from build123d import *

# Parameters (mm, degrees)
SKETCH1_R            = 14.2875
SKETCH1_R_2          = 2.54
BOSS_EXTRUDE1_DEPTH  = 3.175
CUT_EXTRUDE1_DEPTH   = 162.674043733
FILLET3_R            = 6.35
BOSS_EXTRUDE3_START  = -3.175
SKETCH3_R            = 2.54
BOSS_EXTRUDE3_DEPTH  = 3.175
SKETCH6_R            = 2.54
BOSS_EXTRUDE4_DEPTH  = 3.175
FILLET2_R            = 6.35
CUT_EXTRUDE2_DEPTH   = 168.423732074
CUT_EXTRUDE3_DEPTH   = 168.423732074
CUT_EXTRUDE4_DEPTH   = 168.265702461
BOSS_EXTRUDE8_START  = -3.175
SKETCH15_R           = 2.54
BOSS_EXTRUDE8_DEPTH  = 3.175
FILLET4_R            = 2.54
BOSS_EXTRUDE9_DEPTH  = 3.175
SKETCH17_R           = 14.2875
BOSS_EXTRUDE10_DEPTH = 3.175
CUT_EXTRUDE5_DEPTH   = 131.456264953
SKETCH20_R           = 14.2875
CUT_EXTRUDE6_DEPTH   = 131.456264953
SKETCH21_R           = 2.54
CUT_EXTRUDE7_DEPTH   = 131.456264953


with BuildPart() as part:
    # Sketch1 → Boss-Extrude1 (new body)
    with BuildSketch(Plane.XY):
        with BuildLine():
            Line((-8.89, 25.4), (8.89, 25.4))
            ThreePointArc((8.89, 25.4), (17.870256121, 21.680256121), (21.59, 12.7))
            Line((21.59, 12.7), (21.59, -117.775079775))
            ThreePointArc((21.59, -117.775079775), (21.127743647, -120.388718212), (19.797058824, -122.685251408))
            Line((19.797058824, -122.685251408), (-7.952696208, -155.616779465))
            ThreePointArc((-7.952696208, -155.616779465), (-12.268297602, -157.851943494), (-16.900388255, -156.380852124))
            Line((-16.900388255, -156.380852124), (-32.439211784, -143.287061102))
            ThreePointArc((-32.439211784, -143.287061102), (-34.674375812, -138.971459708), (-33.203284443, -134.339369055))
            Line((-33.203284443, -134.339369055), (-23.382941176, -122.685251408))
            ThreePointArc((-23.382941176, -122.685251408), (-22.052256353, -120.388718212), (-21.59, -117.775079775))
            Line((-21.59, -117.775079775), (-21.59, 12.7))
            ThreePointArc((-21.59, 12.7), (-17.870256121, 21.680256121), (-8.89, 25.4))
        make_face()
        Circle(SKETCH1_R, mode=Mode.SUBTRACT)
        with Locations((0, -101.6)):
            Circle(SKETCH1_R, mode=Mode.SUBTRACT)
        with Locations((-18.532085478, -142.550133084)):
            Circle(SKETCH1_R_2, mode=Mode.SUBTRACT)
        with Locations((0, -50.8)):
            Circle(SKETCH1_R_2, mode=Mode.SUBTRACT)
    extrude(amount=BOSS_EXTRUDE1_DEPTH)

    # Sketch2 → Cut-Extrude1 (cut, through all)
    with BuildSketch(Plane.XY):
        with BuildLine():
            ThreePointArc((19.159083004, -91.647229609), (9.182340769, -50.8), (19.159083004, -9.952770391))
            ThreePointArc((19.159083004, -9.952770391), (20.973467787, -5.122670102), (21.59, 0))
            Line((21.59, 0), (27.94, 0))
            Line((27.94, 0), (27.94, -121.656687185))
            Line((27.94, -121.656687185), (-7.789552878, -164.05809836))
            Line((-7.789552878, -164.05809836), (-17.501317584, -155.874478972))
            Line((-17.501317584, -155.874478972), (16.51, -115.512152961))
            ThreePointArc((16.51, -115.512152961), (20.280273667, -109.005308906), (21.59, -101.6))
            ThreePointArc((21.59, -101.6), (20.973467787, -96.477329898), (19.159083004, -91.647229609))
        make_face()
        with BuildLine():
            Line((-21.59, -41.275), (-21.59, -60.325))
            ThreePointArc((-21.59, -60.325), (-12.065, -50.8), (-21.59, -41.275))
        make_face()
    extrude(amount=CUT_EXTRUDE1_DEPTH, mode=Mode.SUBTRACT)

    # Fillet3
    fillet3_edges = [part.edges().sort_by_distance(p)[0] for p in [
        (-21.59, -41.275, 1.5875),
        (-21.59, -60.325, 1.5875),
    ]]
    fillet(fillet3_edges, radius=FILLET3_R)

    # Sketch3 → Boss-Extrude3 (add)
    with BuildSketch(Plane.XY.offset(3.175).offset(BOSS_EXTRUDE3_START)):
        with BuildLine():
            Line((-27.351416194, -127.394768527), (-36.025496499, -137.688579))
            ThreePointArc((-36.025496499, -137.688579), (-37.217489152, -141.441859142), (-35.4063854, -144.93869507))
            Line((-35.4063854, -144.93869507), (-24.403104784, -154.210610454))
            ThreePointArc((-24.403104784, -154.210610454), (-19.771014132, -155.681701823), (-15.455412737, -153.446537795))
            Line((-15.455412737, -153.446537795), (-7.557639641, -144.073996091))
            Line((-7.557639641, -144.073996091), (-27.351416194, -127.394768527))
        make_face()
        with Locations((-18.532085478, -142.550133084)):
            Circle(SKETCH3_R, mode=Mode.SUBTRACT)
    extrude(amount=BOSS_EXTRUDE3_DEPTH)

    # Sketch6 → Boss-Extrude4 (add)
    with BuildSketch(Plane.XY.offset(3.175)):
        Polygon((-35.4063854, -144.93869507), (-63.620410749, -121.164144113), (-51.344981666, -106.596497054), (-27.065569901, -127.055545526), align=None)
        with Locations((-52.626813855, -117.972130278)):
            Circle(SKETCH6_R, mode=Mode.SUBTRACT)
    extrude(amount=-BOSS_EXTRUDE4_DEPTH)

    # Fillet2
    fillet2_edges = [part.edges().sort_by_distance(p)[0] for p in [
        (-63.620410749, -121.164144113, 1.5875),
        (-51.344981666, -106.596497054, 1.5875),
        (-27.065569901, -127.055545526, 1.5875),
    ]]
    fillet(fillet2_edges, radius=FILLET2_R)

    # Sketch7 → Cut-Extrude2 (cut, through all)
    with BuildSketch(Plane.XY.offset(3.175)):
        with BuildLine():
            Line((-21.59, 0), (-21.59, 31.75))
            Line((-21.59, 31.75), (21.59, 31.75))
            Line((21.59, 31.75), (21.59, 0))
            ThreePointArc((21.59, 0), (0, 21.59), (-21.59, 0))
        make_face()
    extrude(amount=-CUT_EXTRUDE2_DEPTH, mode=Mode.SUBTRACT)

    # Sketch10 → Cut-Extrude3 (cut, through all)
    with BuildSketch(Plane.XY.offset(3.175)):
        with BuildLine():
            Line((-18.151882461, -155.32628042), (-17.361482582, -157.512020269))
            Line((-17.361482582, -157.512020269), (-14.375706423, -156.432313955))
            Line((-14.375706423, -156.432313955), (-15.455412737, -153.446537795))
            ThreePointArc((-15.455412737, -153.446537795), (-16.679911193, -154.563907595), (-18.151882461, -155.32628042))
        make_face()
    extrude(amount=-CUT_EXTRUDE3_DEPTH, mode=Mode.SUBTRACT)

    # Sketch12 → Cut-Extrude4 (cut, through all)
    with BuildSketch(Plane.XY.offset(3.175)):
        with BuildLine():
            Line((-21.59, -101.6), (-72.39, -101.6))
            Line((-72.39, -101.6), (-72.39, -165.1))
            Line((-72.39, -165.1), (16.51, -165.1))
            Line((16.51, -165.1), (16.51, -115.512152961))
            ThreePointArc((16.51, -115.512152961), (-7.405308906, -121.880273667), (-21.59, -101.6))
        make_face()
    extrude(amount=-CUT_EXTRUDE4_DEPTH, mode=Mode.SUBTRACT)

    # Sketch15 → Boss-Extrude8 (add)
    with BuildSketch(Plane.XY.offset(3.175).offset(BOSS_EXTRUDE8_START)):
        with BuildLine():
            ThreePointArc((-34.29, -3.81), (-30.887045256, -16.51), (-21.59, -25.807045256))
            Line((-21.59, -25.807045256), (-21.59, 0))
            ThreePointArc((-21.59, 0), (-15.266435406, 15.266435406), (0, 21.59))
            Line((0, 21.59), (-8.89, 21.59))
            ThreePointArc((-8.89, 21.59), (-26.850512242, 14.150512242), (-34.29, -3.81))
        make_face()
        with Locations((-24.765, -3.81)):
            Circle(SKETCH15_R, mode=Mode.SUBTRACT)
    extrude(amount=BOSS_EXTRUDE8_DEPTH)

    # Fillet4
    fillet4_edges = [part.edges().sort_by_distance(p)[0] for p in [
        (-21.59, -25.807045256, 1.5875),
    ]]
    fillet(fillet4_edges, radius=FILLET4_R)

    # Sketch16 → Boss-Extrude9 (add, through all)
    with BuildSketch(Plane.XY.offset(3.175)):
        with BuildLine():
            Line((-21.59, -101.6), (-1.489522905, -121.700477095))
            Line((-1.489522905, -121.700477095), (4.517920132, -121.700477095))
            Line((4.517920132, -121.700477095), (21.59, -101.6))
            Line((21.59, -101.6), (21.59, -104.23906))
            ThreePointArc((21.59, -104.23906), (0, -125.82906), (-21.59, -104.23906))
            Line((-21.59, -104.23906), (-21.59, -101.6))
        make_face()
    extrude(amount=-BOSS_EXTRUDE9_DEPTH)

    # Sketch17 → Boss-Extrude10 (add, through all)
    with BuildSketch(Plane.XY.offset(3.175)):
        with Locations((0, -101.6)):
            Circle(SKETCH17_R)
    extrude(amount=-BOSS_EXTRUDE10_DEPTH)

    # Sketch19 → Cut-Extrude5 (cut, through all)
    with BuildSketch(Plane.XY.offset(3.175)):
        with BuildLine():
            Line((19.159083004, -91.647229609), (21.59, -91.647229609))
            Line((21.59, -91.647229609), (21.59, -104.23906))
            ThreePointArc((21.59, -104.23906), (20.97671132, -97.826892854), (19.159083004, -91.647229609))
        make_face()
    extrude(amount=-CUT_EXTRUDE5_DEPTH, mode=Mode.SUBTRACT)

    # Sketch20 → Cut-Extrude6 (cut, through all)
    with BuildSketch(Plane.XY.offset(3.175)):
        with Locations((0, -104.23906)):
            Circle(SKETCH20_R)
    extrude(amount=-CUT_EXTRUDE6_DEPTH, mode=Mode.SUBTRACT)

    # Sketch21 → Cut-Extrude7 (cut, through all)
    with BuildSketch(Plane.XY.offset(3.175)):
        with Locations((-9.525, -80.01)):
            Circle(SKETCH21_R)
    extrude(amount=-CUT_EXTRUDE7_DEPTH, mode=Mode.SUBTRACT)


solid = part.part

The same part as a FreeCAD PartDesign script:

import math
import FreeCAD as App
import Part
import Sketcher

V = App.Vector
Q = App.Units.Quantity


def edges_at(feature, points):
    """Names of the edges that pass closest to the given points."""
    edges = feature.Shape.Edges
    near = lambda p: min(range(len(edges)), key=lambda i: edges[i].distToShape(Part.Vertex(*p))[0])
    return sorted({f"Edge{near(p) + 1}" for p in points})

doc = App.newDocument("Part")
body = doc.addObject("PartDesign::Body", "Body")

sketch1 = body.newObject("Sketcher::SketchObject", "Sketch")
sketch1.AttachmentSupport = (doc.getObject("XY_Plane"), [""])
sketch1.MapMode = "FlatFace"
sketch1.addGeometry(Part.LineSegment(V(8.9, 25.4, 0), V(-8.9, 25.4, 0)), False)
sketch1.addGeometry(Part.ArcOfCircle(Part.Circle(V(-8.9, 12.7, 0), V(0, 0, 1), 12.7), math.radians(90), math.radians(180)), False)
sketch1.addGeometry(Part.LineSegment(V(-21.6, 12.7, 0), V(-21.6, -117.8, 0)), False)
sketch1.addGeometry(Part.ArcOfCircle(Part.Circle(V(-29.2, -117.8, 0), V(0, 0, 1), 7.6), math.radians(-40), math.radians(0)), False)
sketch1.addGeometry(Part.LineSegment(V(-23.4, -122.7, 0), V(-33.2, -134.3, 0)), False)
sketch1.addGeometry(Part.ArcOfCircle(Part.Circle(V(-28.3, -138.4, 0), V(0, 0, 1), 6.4), math.radians(140), math.radians(230)), False)
sketch1.addGeometry(Part.LineSegment(V(-32.4, -143.3, 0), V(-16.9, -156.4, 0)), False)
sketch1.addGeometry(Part.ArcOfCircle(Part.Circle(V(-12.8, -151.5, 0), V(0, 0, 1), 6.3), math.radians(-130), math.radians(-40)), False)
sketch1.addGeometry(Part.LineSegment(V(-8, -155.6, 0), V(19.8, -122.7, 0)), False)
sketch1.addGeometry(Part.ArcOfCircle(Part.Circle(V(14, -117.8, 0), V(0, 0, 1), 7.6), math.radians(-40), math.radians(0)), False)
sketch1.addGeometry(Part.LineSegment(V(21.6, -117.8, 0), V(21.6, 12.7, 0)), False)
sketch1.addGeometry(Part.ArcOfCircle(Part.Circle(V(8.9, 12.7, 0), V(0, 0, 1), 12.7), math.radians(0), math.radians(90)), False)
sketch1.addGeometry(Part.Circle(V(0, -101.6, 0), V(0, 0, 1), 14.3), False)
sketch1.addGeometry(Part.Circle(V(-18.5, -142.6, 0), V(0, 0, 1), 2.5), False)
sketch1.addGeometry(Part.Circle(V(0, -50.8, 0), V(0, 0, 1), 2.5), False)
sketch1.addGeometry(Part.Circle(V(0, 0, 0), V(0, 0, 1), 14.3), False)
sketch1.addConstraint(Sketcher.Constraint("Tangent", 0, 2, 1, 1))
sketch1.addConstraint(Sketcher.Constraint("Tangent", 1, 2, 2, 1))
sketch1.addConstraint(Sketcher.Constraint("Tangent", 2, 2, 3, 2))
sketch1.addConstraint(Sketcher.Constraint("Tangent", 3, 1, 4, 1))
sketch1.addConstraint(Sketcher.Constraint("Tangent", 4, 2, 5, 1))
sketch1.addConstraint(Sketcher.Constraint("Tangent", 5, 2, 6, 1))
sketch1.addConstraint(Sketcher.Constraint("Tangent", 6, 2, 7, 1))
sketch1.addConstraint(Sketcher.Constraint("Tangent", 7, 2, 8, 1))
sketch1.addConstraint(Sketcher.Constraint("Tangent", 8, 2, 9, 1))
sketch1.addConstraint(Sketcher.Constraint("Tangent", 9, 2, 10, 1))
sketch1.addConstraint(Sketcher.Constraint("Tangent", 10, 2, 11, 1))
sketch1.addConstraint(Sketcher.Constraint("Tangent", 11, 2, 0, 1))
sketch1.addConstraint(Sketcher.Constraint("Horizontal", 0))
sketch1.addConstraint(Sketcher.Constraint("Vertical", 2))
sketch1.addConstraint(Sketcher.Constraint("Vertical", 10))
sketch1.addConstraint(Sketcher.Constraint("Coincident", 15, 3, -1, 1))
sketch1.addConstraint(Sketcher.Constraint("Equal", 5, 7))
sketch1.addConstraint(Sketcher.Constraint("Equal", 3, 9))
sketch1.addConstraint(Sketcher.Constraint("Equal", 1, 11))
sketch1.addConstraint(Sketcher.Constraint("Equal", 13, 14))
sketch1.addConstraint(Sketcher.Constraint("Equal", 12, 15))
sketch1.addConstraint(Sketcher.Constraint("Symmetric", 2, 2, 9, 2, -2))
sketch1.addConstraint(Sketcher.Constraint("PointOnObject", 12, 3, -2))
sketch1.addConstraint(Sketcher.Constraint("PointOnObject", 14, 3, -2))
sketch1.addConstraint(Sketcher.Constraint("Perpendicular", 4, 6))
sketch1.addConstraint(Sketcher.Constraint("Perpendicular", 6, 8))
sketch1.addConstraint(Sketcher.Constraint("Diameter", 13, Q("0.2 in")))
sketch1.addConstraint(Sketcher.Constraint("Radius", 1, Q("0.5 in")))
sketch1.addConstraint(Sketcher.Constraint("Radius", 3, Q("0.3 in")))
sketch1.addConstraint(Sketcher.Constraint("Radius", 5, Q("0.25 in")))
sketch1.addConstraint(Sketcher.Constraint("Diameter", 12, Q("1.125 in")))
sketch1.addConstraint(Sketcher.Constraint("DistanceX", 0, 2, 0, 1, Q("0.7 in")))
sketch1.addConstraint(Sketcher.Constraint("DistanceY", 12, 3, -1, 1, Q("4 in")))
sketch1.addConstraint(Sketcher.Constraint("DistanceY", 14, 3, -1, 1, Q("2 in")))
sketch1.addConstraint(Sketcher.Constraint("DistanceY", -1, 1, 0, 2, Q("1 in")))
sketch1.addConstraint(Sketcher.Constraint("Distance", 4, Q("0.6 in")))
sketch1.addConstraint(Sketcher.Constraint("Distance", 6, Q("0.8 in")))
sketch1.addConstraint(Sketcher.Constraint("DistanceY", 2, 2, 2, 1, Q("130.47508 mm")))
sketch1.addConstraint(Sketcher.Constraint("DistanceX", 4, 2, 13, 3, Q("14.671199 mm")))
sketch1.addConstraint(Sketcher.Constraint("DistanceY", 13, 3, 3, 1, Q("19.864882 mm")))
pad1 = body.newObject("PartDesign::Pad", "Pad")
pad1.Profile = sketch1
pad1.Length = Q("0.125 in")

sketch2 = body.newObject("Sketcher::SketchObject", "Sketch001")
sketch2.AttachmentSupport = (doc.getObject("XY_Plane"), [""])
sketch2.MapMode = "FlatFace"
sketch2.addGeometry(Part.ArcOfCircle(Part.Circle(V(98, -51, 0), V(0, 0, 1), 89), math.radians(153), math.radians(207)), False)
sketch2.addGeometry(Part.ArcOfCircle(Part.Circle(V(0, -102, 0), V(0, 0, 1), 22), math.radians(0), math.radians(27)), False)
sketch2.addGeometry(Part.ArcOfCircle(Part.Circle(V(0, -102, 0), V(0, 0, 1), 22), math.radians(-40), math.radians(0)), False)
sketch2.addGeometry(Part.LineSegment(V(17, -116, 0), V(-18, -156, 0)), False)
sketch2.addGeometry(Part.LineSegment(V(-18, -156, 0), V(-8, -164, 0)), False)
sketch2.addGeometry(Part.LineSegment(V(-8, -164, 0), V(28, -122, 0)), False)
sketch2.addGeometry(Part.LineSegment(V(28, -122, 0), V(28, 0, 0)), False)
sketch2.addGeometry(Part.LineSegment(V(28, 0, 0), V(22, 0, 0)), False)
sketch2.addGeometry(Part.ArcOfCircle(Part.Circle(V(0, 0, 0), V(0, 0, 1), 22), math.radians(-27), math.radians(0)), False)
sketch2.addGeometry(Part.LineSegment(V(-22, -41, 0), V(-22, -60, 0)), False)
sketch2.addGeometry(Part.ArcOfCircle(Part.Circle(V(-22, -51, 0), V(0, 0, 1), 10), math.radians(-90), math.radians(90)), False)
sketch2.addConstraint(Sketcher.Constraint("Tangent", 0, 2, 1, 2))
sketch2.addConstraint(Sketcher.Constraint("Tangent", 1, 1, 2, 2))
sketch2.addConstraint(Sketcher.Constraint("Tangent", 2, 1, 3, 1))
sketch2.addConstraint(Sketcher.Constraint("Coincident", 3, 2, 4, 1))
sketch2.addConstraint(Sketcher.Constraint("Coincident", 4, 2, 5, 1))
sketch2.addConstraint(Sketcher.Constraint("Coincident", 5, 2, 6, 1))
sketch2.addConstraint(Sketcher.Constraint("Coincident", 6, 2, 7, 1))
sketch2.addConstraint(Sketcher.Constraint("Coincident", 7, 2, 8, 2))
sketch2.addConstraint(Sketcher.Constraint("Tangent", 8, 1, 0, 1))
sketch2.addConstraint(Sketcher.Constraint("Coincident", 9, 1, 10, 2))
sketch2.addConstraint(Sketcher.Constraint("Coincident", 10, 1, 9, 2))
sketch2.addConstraint(Sketcher.Constraint("Vertical", 6))
sketch2.addConstraint(Sketcher.Constraint("Horizontal", 7))
sketch2.addConstraint(Sketcher.Constraint("Vertical", 9))
sketch2.addConstraint(Sketcher.Constraint("Coincident", 8, 3, -1, 1))
sketch2.addConstraint(Sketcher.Constraint("Equal", 1, 2))
sketch2.addConstraint(Sketcher.Constraint("Equal", 2, 8))
sketch2.addConstraint(Sketcher.Constraint("PointOnObject", 1, 3, -2))
sketch2.addConstraint(Sketcher.Constraint("PointOnObject", 6, 2, -1))
sketch2.addConstraint(Sketcher.Constraint("Perpendicular", 3, 4))
sketch2.addConstraint(Sketcher.Constraint("Perpendicular", 4, 5))
sketch2.addConstraint(Sketcher.Constraint("Horizontal", 0, 3, 10, 3))
sketch2.addConstraint(Sketcher.Constraint("Horizontal", 2, 3, 1, 1))
sketch2.addConstraint(Sketcher.Constraint("Vertical", 10, 3, 9, 1))
sketch2.addConstraint(Sketcher.Constraint("Radius", 1, Q("0.85 in")))
sketch2.addConstraint(Sketcher.Constraint("DistanceY", 0, 3, -1, 1, Q("2 in")))
sketch2.addConstraint(Sketcher.Constraint("Radius", 10, Q("0.375 in")))
sketch2.addConstraint(Sketcher.Constraint("DistanceX", 1, 1, 0, 3, Q("3 in")))
sketch2.addConstraint(Sketcher.Constraint("Distance", 4, Q("0.5 in")))
sketch2.addConstraint(Sketcher.Constraint("DistanceX", 7, 2, 7, 1, Q("0.25 in")))
sketch2.addConstraint(Sketcher.Constraint("DistanceX", 10, 3, 0, 3, Q("4.7 in")))
sketch2.addConstraint(Sketcher.Constraint("DistanceX", 2, 1, 1, 1, Q("0.2 in")))
sketch2.addConstraint(Sketcher.Constraint("Distance", 5, Q("55.447999 mm")))
pocket1 = body.newObject("PartDesign::Pocket", "Pocket")
pocket1.Profile = sketch2
pocket1.Type = "ThroughAll"
pocket1.Reversed = True
doc.recompute()

fillet = body.newObject("PartDesign::Fillet", "Fillet")
fillet.Base = (pocket1, edges_at(pocket1, [(-21.59, -41.275, 1.587), (-21.59, -60.325, 1.587)]))
fillet.Radius = Q("0.25 in")

sketch3 = body.newObject("Sketcher::SketchObject", "Sketch002")
sketch3.AttachmentSupport = (doc.getObject("XY_Plane"), [""])
sketch3.MapMode = "FlatFace"
sketch3.addGeometry(Part.LineSegment(V(-27.4, -127.4, 0), V(-36, -137.7, 0)), False)
sketch3.addGeometry(Part.ArcOfCircle(Part.Circle(V(-32.1, -141, 0), V(0, 0, 1), 5.1), math.radians(140), math.radians(230)), False)
sketch3.addGeometry(Part.LineSegment(V(-35.4, -144.9, 0), V(-24.4, -154.2, 0)), False)
sketch3.addGeometry(Part.ArcOfCircle(Part.Circle(V(-20.3, -149.4, 0), V(0, 0, 1), 6.4), math.radians(-130), math.radians(-40)), False)
sketch3.addGeometry(Part.LineSegment(V(-15.5, -153.4, 0), V(-7.6, -144.1, 0)), False)
sketch3.addGeometry(Part.LineSegment(V(-7.6, -144.1, 0), V(-27.4, -127.4, 0)), False)
sketch3.addGeometry(Part.Circle(V(-18.5, -142.6, 0), V(0, 0, 1), 2.5), False)
sketch3.addConstraint(Sketcher.Constraint("Tangent", 0, 2, 1, 1))
sketch3.addConstraint(Sketcher.Constraint("Tangent", 1, 2, 2, 1))
sketch3.addConstraint(Sketcher.Constraint("Tangent", 2, 2, 3, 1))
sketch3.addConstraint(Sketcher.Constraint("Tangent", 3, 2, 4, 1))
sketch3.addConstraint(Sketcher.Constraint("Coincident", 4, 2, 5, 1))
sketch3.addConstraint(Sketcher.Constraint("Coincident", 5, 2, 0, 1))
sketch3.addConstraint(Sketcher.Constraint("Perpendicular", 0, 2))
sketch3.addConstraint(Sketcher.Constraint("Perpendicular", 2, 4))
sketch3.addConstraint(Sketcher.Constraint("Perpendicular", 4, 5))
sketch3.addConstraint(Sketcher.Constraint("Diameter", 6, Q("0.2 in")))
sketch3.addConstraint(Sketcher.Constraint("Radius", 3, Q("0.25 in")))
sketch3.addConstraint(Sketcher.Constraint("Radius", 1, Q("5.145264 mm")))
sketch3.addConstraint(Sketcher.Constraint("DistanceX", 1, 2, 2, 2, Q("0.4332 in")))
sketch3.addConstraint(Sketcher.Constraint("Distance", 4, Q("12.256401 mm")))
sketch3.addConstraint(Sketcher.Constraint("DistanceX", 0, 2, 3, 3, Q("15.714201 mm")))
sketch3.addConstraint(Sketcher.Constraint("DistanceX", 1, 2, 6, 3, Q("16.8743 mm")))
sketch3.addConstraint(Sketcher.Constraint("DistanceY", 1, 3, -1, 1, Q("141.004081 mm")))
sketch3.addConstraint(Sketcher.Constraint("DistanceX", 4, 2, -1, 1, Q("7.55764 mm")))
sketch3.addConstraint(Sketcher.Constraint("DistanceY", 6, 3, 1, 3, Q("1.546052 mm")))
pad2 = body.newObject("PartDesign::Pad", "Pad001")
pad2.Profile = sketch3
pad2.Length = Q("0.125 in")

sketch4 = body.newObject("Sketcher::SketchObject", "Sketch003")
sketch4.AttachmentSupport = (doc.getObject("XY_Plane"), [""])
sketch4.MapMode = "FlatFace"
sketch4.AttachmentOffset = App.Placement(V(0, 0, 0.125 * 25.4), App.Rotation())
sketch4.addGeometry(Part.LineSegment(V(-63.6, -121.2, 0), V(-35.4, -144.9, 0)), False)
sketch4.addGeometry(Part.LineSegment(V(-35.4, -144.9, 0), V(-27.1, -127.1, 0)), False)
sketch4.addGeometry(Part.LineSegment(V(-27.1, -127.1, 0), V(-51.3, -106.6, 0)), False)
sketch4.addGeometry(Part.LineSegment(V(-51.3, -106.6, 0), V(-63.6, -121.2, 0)), False)
sketch4.addGeometry(Part.Circle(V(-52.6, -118, 0), V(0, 0, 1), 2.5), False)
sketch4.addConstraint(Sketcher.Constraint("Coincident", 0, 2, 1, 1))
sketch4.addConstraint(Sketcher.Constraint("Coincident", 1, 2, 2, 1))
sketch4.addConstraint(Sketcher.Constraint("Coincident", 2, 2, 3, 1))
sketch4.addConstraint(Sketcher.Constraint("Coincident", 3, 2, 0, 1))
sketch4.addConstraint(Sketcher.Constraint("Parallel", 0, 2))
sketch4.addConstraint(Sketcher.Constraint("Perpendicular", 2, 3))
sketch4.addConstraint(Sketcher.Constraint("Diameter", 4, Q("0.2 in")))
sketch4.addConstraint(Sketcher.Constraint("Distance", 2, Q("1.25 in")))
sketch4.addConstraint(Sketcher.Constraint("Distance", 3, Q("0.75 in")))
sketch4.addConstraint(Sketcher.Constraint("DistanceY", 0, 2, 2, 2, Q("38.342198 mm")))
sketch4.addConstraint(Sketcher.Constraint("DistanceY", 1, 2, 3, 2, Q("5.891401 mm")))
sketch4.addConstraint(Sketcher.Constraint("DistanceY", 4, 3, -1, 1, Q("117.97213 mm")))
sketch4.addConstraint(Sketcher.Constraint("DistanceX", 1, 2, -1, 1, Q("27.06557 mm")))
sketch4.addConstraint(Sketcher.Constraint("DistanceX", 4, 3, 0, 2, Q("17.220428 mm")))
sketch4.addConstraint(Sketcher.Constraint("DistanceY", 0, 2, -1, 1, Q("144.938695 mm")))
pad3 = body.newObject("PartDesign::Pad", "Pad002")
pad3.Profile = sketch4
pad3.Length = Q("0.125 in")
pad3.Reversed = True
doc.recompute()

fillet2 = body.newObject("PartDesign::Fillet", "Fillet001")
fillet2.Base = (pad3, edges_at(pad3, [(-63.62, -121.164, 1.587), (-51.345, -106.596, 1.587), (-27.066, -127.056, 1.587)]))
fillet2.Radius = Q("0.25 in")

sketch5 = body.newObject("Sketcher::SketchObject", "Sketch004")
sketch5.AttachmentSupport = (doc.getObject("XY_Plane"), [""])
sketch5.MapMode = "FlatFace"
sketch5.AttachmentOffset = App.Placement(V(0, 0, 0.125 * 25.4), App.Rotation())
sketch5.addGeometry(Part.LineSegment(V(-22, 32, 0), V(-22, 0, 0)), False)
sketch5.addGeometry(Part.ArcOfCircle(Part.Circle(V(0, 0, 0), V(0, 0, 1), 22), math.radians(0), math.radians(180)), False)
sketch5.addGeometry(Part.LineSegment(V(22, 0, 0), V(22, 32, 0)), False)
sketch5.addGeometry(Part.LineSegment(V(22, 32, 0), V(-22, 32, 0)), False)
sketch5.addConstraint(Sketcher.Constraint("Tangent", 0, 2, 1, 2))
sketch5.addConstraint(Sketcher.Constraint("Tangent", 1, 1, 2, 1))
sketch5.addConstraint(Sketcher.Constraint("Coincident", 2, 2, 3, 1))
sketch5.addConstraint(Sketcher.Constraint("Coincident", 3, 2, 0, 1))
sketch5.addConstraint(Sketcher.Constraint("Vertical", 0))
sketch5.addConstraint(Sketcher.Constraint("Vertical", 2))
sketch5.addConstraint(Sketcher.Constraint("Horizontal", 3))
sketch5.addConstraint(Sketcher.Constraint("Coincident", 1, 3, -1, 1))
sketch5.addConstraint(Sketcher.Constraint("Radius", 1, Q("0.85 in")))
sketch5.addConstraint(Sketcher.Constraint("DistanceY", 0, 2, 0, 1, Q("1.25 in")))
pocket2 = body.newObject("PartDesign::Pocket", "Pocket001")
pocket2.Profile = sketch5
pocket2.Type = "ThroughAll"

sketch6 = body.newObject("Sketcher::SketchObject", "Sketch005")
sketch6.AttachmentSupport = (doc.getObject("XY_Plane"), [""])
sketch6.MapMode = "FlatFace"
sketch6.AttachmentOffset = App.Placement(V(0, 0, 0.125 * 25.4), App.Rotation())
sketch6.addGeometry(Part.LineSegment(V(-18.2, -155.3, 0), V(-17.4, -157.5, 0)), False)
sketch6.addGeometry(Part.LineSegment(V(-17.4, -157.5, 0), V(-14.4, -156.4, 0)), False)
sketch6.addGeometry(Part.LineSegment(V(-14.4, -156.4, 0), V(-15.5, -153.4, 0)), False)
sketch6.addGeometry(Part.ArcOfCircle(Part.Circle(V(-20.3, -149.4, 0), V(0, 0, 1), 6.3), math.radians(-70), math.radians(-40)), False)
sketch6.addConstraint(Sketcher.Constraint("Coincident", 0, 2, 1, 1))
sketch6.addConstraint(Sketcher.Constraint("Coincident", 1, 2, 2, 1))
sketch6.addConstraint(Sketcher.Constraint("Coincident", 2, 2, 3, 2))
sketch6.addConstraint(Sketcher.Constraint("Coincident", 3, 1, 0, 1))
sketch6.addConstraint(Sketcher.Constraint("Perpendicular", 0, 1))
sketch6.addConstraint(Sketcher.Constraint("Perpendicular", 1, 2))
sketch6.addConstraint(Sketcher.Constraint("Equal", 1, 2))
sketch6.addConstraint(Sketcher.Constraint("Radius", 3, Q("0.25 in")))
sketch6.addConstraint(Sketcher.Constraint("Distance", 1, Q("0.125 in")))
sketch6.addConstraint(Sketcher.Constraint("DistanceX", 3, 1, 0, 2, Q("0.7904 mm")))
sketch6.addConstraint(Sketcher.Constraint("Distance", 0, Q("2.324261 mm")))
sketch6.addConstraint(Sketcher.Constraint("DistanceY", 3, 3, -1, 1, Q("149.354728 mm")))
sketch6.addConstraint(Sketcher.Constraint("DistanceX", 3, 3, -1, 1, Q("20.311295 mm")))
pocket3 = body.newObject("PartDesign::Pocket", "Pocket002")
pocket3.Profile = sketch6
pocket3.Type = "ThroughAll"

sketch7 = body.newObject("Sketcher::SketchObject", "Sketch006")
sketch7.AttachmentSupport = (doc.getObject("XY_Plane"), [""])
sketch7.MapMode = "FlatFace"
sketch7.AttachmentOffset = App.Placement(V(0, 0, 0.125 * 25.4), App.Rotation())
sketch7.addGeometry(Part.LineSegment(V(-22, -102, 0), V(-72, -102, 0)), False)
sketch7.addGeometry(Part.LineSegment(V(-72, -102, 0), V(-72, -165, 0)), False)
sketch7.addGeometry(Part.LineSegment(V(-72, -165, 0), V(17, -165, 0)), False)
sketch7.addGeometry(Part.LineSegment(V(17, -165, 0), V(17, -116, 0)), False)
sketch7.addGeometry(Part.ArcOfCircle(Part.Circle(V(0, -102, 0), V(0, 0, 1), 22), math.radians(180), math.radians(320)), False)
sketch7.addConstraint(Sketcher.Constraint("Coincident", 0, 2, 1, 1))
sketch7.addConstraint(Sketcher.Constraint("Coincident", 1, 2, 2, 1))
sketch7.addConstraint(Sketcher.Constraint("Coincident", 2, 2, 3, 1))
sketch7.addConstraint(Sketcher.Constraint("Coincident", 3, 2, 4, 2))
sketch7.addConstraint(Sketcher.Constraint("Coincident", 4, 1, 0, 1))
sketch7.addConstraint(Sketcher.Constraint("Horizontal", 0))
sketch7.addConstraint(Sketcher.Constraint("Vertical", 1))
sketch7.addConstraint(Sketcher.Constraint("Horizontal", 2))
sketch7.addConstraint(Sketcher.Constraint("Vertical", 3))
sketch7.addConstraint(Sketcher.Constraint("PointOnObject", 4, 3, -2))
sketch7.addConstraint(Sketcher.Constraint("Horizontal", 4, 3, 0, 2))
sketch7.addConstraint(Sketcher.Constraint("DistanceX", 0, 2, 0, 1, Q("2 in")))
sketch7.addConstraint(Sketcher.Constraint("Radius", 4, Q("0.85 in")))
sketch7.addConstraint(Sketcher.Constraint("DistanceX", 2, 1, 2, 2, Q("3.5 in")))
sketch7.addConstraint(Sketcher.Constraint("DistanceY", 1, 2, 1, 1, Q("2.5 in")))
sketch7.addConstraint(Sketcher.Constraint("DistanceY", 4, 3, -1, 1, Q("4 in")))
pocket4 = body.newObject("PartDesign::Pocket", "Pocket003")
pocket4.Profile = sketch7
pocket4.Type = "ThroughAll"

sketch8 = body.newObject("Sketcher::SketchObject", "Sketch007")
sketch8.AttachmentSupport = (doc.getObject("XY_Plane"), [""])
sketch8.MapMode = "FlatFace"
sketch8.addGeometry(Part.ArcOfCircle(Part.Circle(V(-8.9, -3.8, 0), V(0, 0, 1), 25.4), math.radians(180), math.radians(240)), False)
sketch8.addGeometry(Part.LineSegment(V(-21.6, -25.8, 0), V(-21.6, 0, 0)), False)
sketch8.addGeometry(Part.ArcOfCircle(Part.Circle(V(0, 0, 0), V(0, 0, 1), 21.6), math.radians(90), math.radians(180)), False)
sketch8.addGeometry(Part.LineSegment(V(0, 21.6, 0), V(-8.9, 21.6, 0)), False)
sketch8.addGeometry(Part.ArcOfCircle(Part.Circle(V(-8.9, -3.8, 0), V(0, 0, 1), 25.4), math.radians(90), math.radians(180)), False)
sketch8.addGeometry(Part.Circle(V(-24.8, -3.8, 0), V(0, 0, 1), 2.5), False)
sketch8.addConstraint(Sketcher.Constraint("Coincident", 0, 2, 1, 1))
sketch8.addConstraint(Sketcher.Constraint("Tangent", 1, 2, 2, 2))
sketch8.addConstraint(Sketcher.Constraint("Tangent", 2, 1, 3, 1))
sketch8.addConstraint(Sketcher.Constraint("Tangent", 3, 2, 4, 1))
sketch8.addConstraint(Sketcher.Constraint("Tangent", 4, 2, 0, 1))
sketch8.addConstraint(Sketcher.Constraint("Vertical", 1))
sketch8.addConstraint(Sketcher.Constraint("Horizontal", 3))
sketch8.addConstraint(Sketcher.Constraint("Coincident", 2, 3, -1, 1))
sketch8.addConstraint(Sketcher.Constraint("Equal", 0, 4))
sketch8.addConstraint(Sketcher.Constraint("Horizontal", 4, 3, 5, 3))
sketch8.addConstraint(Sketcher.Constraint("Horizontal", 5, 3, 4, 2))
sketch8.addConstraint(Sketcher.Constraint("Radius", 0, Q("1 in")))
sketch8.addConstraint(Sketcher.Constraint("Diameter", 5, Q("0.2 in")))
sketch8.addConstraint(Sketcher.Constraint("Radius", 2, Q("0.85 in")))
sketch8.addConstraint(Sketcher.Constraint("DistanceX", 3, 2, 3, 1, Q("0.35 in")))
sketch8.addConstraint(Sketcher.Constraint("DistanceX", 5, 3, -1, 1, Q("0.975 in")))
pad4 = body.newObject("PartDesign::Pad", "Pad003")
pad4.Profile = sketch8
pad4.Length = Q("0.125 in")
doc.recompute()

fillet3 = body.newObject("PartDesign::Fillet", "Fillet002")
fillet3.Base = (pad4, edges_at(pad4, [(-21.59, -25.807, 1.587)]))
fillet3.Radius = Q("0.1 in")

sketch9 = body.newObject("Sketcher::SketchObject", "Sketch008")
sketch9.AttachmentSupport = (doc.getObject("XY_Plane"), [""])
sketch9.MapMode = "FlatFace"
sketch9.AttachmentOffset = App.Placement(V(0, 0, 0.125 * 25.4), App.Rotation())
sketch9.addGeometry(Part.LineSegment(V(-1.5, -121.7, 0), V(-21.6, -101.6, 0)), False)
sketch9.addGeometry(Part.LineSegment(V(-21.6, -101.6, 0), V(-21.6, -104.2, 0)), False)
sketch9.addGeometry(Part.ArcOfCircle(Part.Circle(V(0, -104.2, 0), V(0, 0, 1), 21.6), math.radians(180), math.radians(360)), False)
sketch9.addGeometry(Part.LineSegment(V(21.6, -104.2, 0), V(21.6, -101.6, 0)), False)
sketch9.addGeometry(Part.LineSegment(V(21.6, -101.6, 0), V(4.5, -121.7, 0)), False)
sketch9.addGeometry(Part.LineSegment(V(4.5, -121.7, 0), V(-1.5, -121.7, 0)), False)
sketch9.addConstraint(Sketcher.Constraint("Coincident", 0, 2, 1, 1))
sketch9.addConstraint(Sketcher.Constraint("Tangent", 1, 2, 2, 1))
sketch9.addConstraint(Sketcher.Constraint("Tangent", 2, 2, 3, 1))
sketch9.addConstraint(Sketcher.Constraint("Coincident", 3, 2, 4, 1))
sketch9.addConstraint(Sketcher.Constraint("Coincident", 4, 2, 5, 1))
sketch9.addConstraint(Sketcher.Constraint("Coincident", 5, 2, 0, 1))
sketch9.addConstraint(Sketcher.Constraint("Vertical", 1))
sketch9.addConstraint(Sketcher.Constraint("Vertical", 3))
sketch9.addConstraint(Sketcher.Constraint("Horizontal", 5))
sketch9.addConstraint(Sketcher.Constraint("Symmetric", 0, 2, 3, 2, -2))
sketch9.addConstraint(Sketcher.Constraint("Radius", 2, Q("0.85 in")))
sketch9.addConstraint(Sketcher.Constraint("DistanceY", 0, 2, -1, 1, Q("4 in")))
sketch9.addConstraint(Sketcher.Constraint("Angle", 0, Q("135 deg")))
sketch9.addConstraint(Sketcher.Constraint("DistanceY", 1, 2, 1, 1, Q("0.1039 in")))
sketch9.addConstraint(Sketcher.Constraint("Distance", 4, Q("26.372051 mm")))
sketch9.addConstraint(Sketcher.Constraint("DistanceX", 5, 2, 5, 1, Q("6.007443 mm")))
pad5 = body.newObject("PartDesign::Pad", "Pad004")
pad5.Profile = sketch9
pad5.Type = "UpToLast"
pad5.Reversed = True

sketch10 = body.newObject("Sketcher::SketchObject", "Sketch009")
sketch10.AttachmentSupport = (doc.getObject("XY_Plane"), [""])
sketch10.MapMode = "FlatFace"
sketch10.AttachmentOffset = App.Placement(V(0, 0, 0.125 * 25.4), App.Rotation())
sketch10.addGeometry(Part.Circle(V(0, -102, 0), V(0, 0, 1), 14), False)
sketch10.addConstraint(Sketcher.Constraint("PointOnObject", 0, 3, -2))
sketch10.addConstraint(Sketcher.Constraint("Diameter", 0, Q("1.125 in")))
sketch10.addConstraint(Sketcher.Constraint("DistanceY", 0, 3, -1, 1, Q("4 in")))
pad6 = body.newObject("PartDesign::Pad", "Pad005")
pad6.Profile = sketch10
pad6.Length = Q("0.125 in")
pad6.Reversed = True

sketch11 = body.newObject("Sketcher::SketchObject", "Sketch010")
sketch11.AttachmentSupport = (doc.getObject("XY_Plane"), [""])
sketch11.MapMode = "FlatFace"
sketch11.AttachmentOffset = App.Placement(V(0, 0, 0.125 * 25.4), App.Rotation())
sketch11.addGeometry(Part.LineSegment(V(21.6, -91.6, 0), V(19.2, -91.6, 0)), False)
sketch11.addGeometry(Part.ArcOfCircle(Part.Circle(V(-12.2, -104.2, 0), V(0, 0, 1), 33.8), math.radians(0), math.radians(22)), False)
sketch11.addGeometry(Part.LineSegment(V(21.6, -104.2, 0), V(21.6, -91.6, 0)), False)
sketch11.addConstraint(Sketcher.Constraint("Coincident", 0, 2, 1, 2))
sketch11.addConstraint(Sketcher.Constraint("Tangent", 1, 1, 2, 1))
sketch11.addConstraint(Sketcher.Constraint("Coincident", 2, 2, 0, 1))
sketch11.addConstraint(Sketcher.Constraint("Horizontal", 0))
sketch11.addConstraint(Sketcher.Constraint("Vertical", 2))
sketch11.addConstraint(Sketcher.Constraint("DistanceX", -1, 1, 1, 1, Q("0.85 in")))
sketch11.addConstraint(Sketcher.Constraint("Radius", 1, Q("33.827471 mm")))
sketch11.addConstraint(Sketcher.Constraint("DistanceY", 1, 3, -1, 1, Q("4.1039 in")))
sketch11.addConstraint(Sketcher.Constraint("DistanceY", 2, 1, 2, 2, Q("12.59183 mm")))
pocket5 = body.newObject("PartDesign::Pocket", "Pocket004")
pocket5.Profile = sketch11
pocket5.Type = "ThroughAll"

sketch12 = body.newObject("Sketcher::SketchObject", "Sketch011")
sketch12.AttachmentSupport = (doc.getObject("XY_Plane"), [""])
sketch12.MapMode = "FlatFace"
sketch12.AttachmentOffset = App.Placement(V(0, 0, 0.125 * 25.4), App.Rotation())
sketch12.addGeometry(Part.Circle(V(0, -104, 0), V(0, 0, 1), 14), False)
sketch12.addConstraint(Sketcher.Constraint("PointOnObject", 0, 3, -2))
sketch12.addConstraint(Sketcher.Constraint("Diameter", 0, Q("1.125 in")))
sketch12.addConstraint(Sketcher.Constraint("DistanceY", 0, 3, -1, 1, Q("4.1039 in")))
pocket6 = body.newObject("PartDesign::Pocket", "Pocket005")
pocket6.Profile = sketch12
pocket6.Type = "ThroughAll"

sketch13 = body.newObject("Sketcher::SketchObject", "Sketch012")
sketch13.AttachmentSupport = (doc.getObject("XY_Plane"), [""])
sketch13.MapMode = "FlatFace"
sketch13.AttachmentOffset = App.Placement(V(0, 0, 0.125 * 25.4), App.Rotation())
sketch13.addGeometry(Part.Circle(V(-9.5, -80, 0), V(0, 0, 1), 2.5), False)
sketch13.addConstraint(Sketcher.Constraint("Diameter", 0, Q("0.2 in")))
sketch13.addConstraint(Sketcher.Constraint("DistanceY", 0, 3, -1, 1, Q("3.15 in")))
sketch13.addConstraint(Sketcher.Constraint("DistanceX", 0, 3, -1, 1, Q("0.375 in")))
pocket7 = body.newObject("PartDesign::Pocket", "Pocket006")
pocket7.Profile = sketch13
pocket7.Type = "ThroughAll"

doc.recompute()
